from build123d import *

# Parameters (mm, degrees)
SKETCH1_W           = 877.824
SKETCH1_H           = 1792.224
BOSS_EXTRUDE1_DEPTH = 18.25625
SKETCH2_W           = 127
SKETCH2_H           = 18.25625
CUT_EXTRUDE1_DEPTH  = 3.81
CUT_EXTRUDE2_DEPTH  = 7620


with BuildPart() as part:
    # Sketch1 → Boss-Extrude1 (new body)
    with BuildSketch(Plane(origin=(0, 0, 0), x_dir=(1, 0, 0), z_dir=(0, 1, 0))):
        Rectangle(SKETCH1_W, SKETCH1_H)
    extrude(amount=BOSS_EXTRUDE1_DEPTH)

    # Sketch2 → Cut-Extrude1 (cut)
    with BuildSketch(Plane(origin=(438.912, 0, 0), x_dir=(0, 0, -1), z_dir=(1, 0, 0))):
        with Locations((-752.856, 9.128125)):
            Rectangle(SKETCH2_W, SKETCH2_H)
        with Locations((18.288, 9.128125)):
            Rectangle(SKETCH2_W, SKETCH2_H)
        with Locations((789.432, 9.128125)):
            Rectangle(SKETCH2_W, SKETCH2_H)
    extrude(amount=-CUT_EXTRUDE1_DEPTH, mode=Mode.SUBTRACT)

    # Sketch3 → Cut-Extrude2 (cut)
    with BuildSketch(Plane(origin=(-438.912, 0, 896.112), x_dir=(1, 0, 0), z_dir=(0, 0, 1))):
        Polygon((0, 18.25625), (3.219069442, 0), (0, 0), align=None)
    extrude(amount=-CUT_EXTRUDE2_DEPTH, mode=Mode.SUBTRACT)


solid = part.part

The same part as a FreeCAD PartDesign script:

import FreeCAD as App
import Part
import Sketcher
from FreeCAD import Vector
Q = App.Units.Quantity


def add_polygon(sketch, points):
    """Adds a closed chain of lines whose ends are joined by coincident constraints."""
    first, n = sketch.GeometryCount, len(points)
    for a, b in zip(points, points[1:] + points[:1]):
        sketch.addGeometry(Part.LineSegment(App.Vector(*a, 0), App.Vector(*b, 0)), False)
    for i in range(n):
        sketch.addConstraint(Sketcher.Constraint("Coincident", first + i, 2, first + (i + 1) % n, 1))

doc = App.newDocument("Part")
body = doc.addObject("PartDesign::Body", "Body")

sketch1 = body.newObject("Sketcher::SketchObject", "Sketch")
sketch1.AttachmentSupport = (doc.getObject("XZ_Plane"), [""])
sketch1.MapMode = "FlatFace"
add_polygon(sketch1, [(-439, -896), (-439, 896), (439, 896), (439, -896)])
sketch1.addConstraint(Sketcher.Constraint("Vertical", 0))
sketch1.addConstraint(Sketcher.Constraint("Horizontal", 1))
sketch1.addConstraint(Sketcher.Constraint("Vertical", 2))
sketch1.addConstraint(Sketcher.Constraint("Horizontal", 3))
sketch1.addConstraint(Sketcher.Constraint("Symmetric", 0, 2, 2, 2, -1, 1))
sketch1.addConstraint(Sketcher.Constraint("DistanceX", 1, 1, 1, 2, Q("34.56 in")))
sketch1.addConstraint(Sketcher.Constraint("DistanceY", 0, 1, 0, 2, Q("70.56 in")))
pad1 = body.newObject("PartDesign::Pad", "Pad")
pad1.Profile = sketch1
pad1.Length = Q("0.71875 in")
pad1.Reversed = True

sketch2 = body.newObject("Sketcher::SketchObject", "Sketch001")
sketch2.AttachmentSupport = (doc.getObject("YZ_Plane"), [""])
sketch2.MapMode = "FlatFace"
sketch2.AttachmentOffset = App.Placement(Vector(0, 0, 17.28 * 25.4), App.Rotation())
add_polygon(sketch2, [(18, 816), (0, 816), (0, 689), (18, 689)])
add_polygon(sketch2, [(18, 45), (0, 45), (0, -82), (18, -82)])
add_polygon(sketch2, [(18, -726), (0, -726), (0, -853), (18, -853)])
sketch2.addConstraint(Sketcher.Constraint("Horizontal", 0))
sketch2.addConstraint(Sketcher.Constraint("Vertical", 1))
sketch2.addConstraint(Sketcher.Constraint("Horizontal", 2))
sketch2.addConstraint(Sketcher.Constraint("Vertical", 3))
sketch2.addConstraint(Sketcher.Constraint("Horizontal", 4))
sketch2.addConstraint(Sketcher.Constraint("Vertical", 5))
sketch2.addConstraint(Sketcher.Constraint("Horizontal", 6))
sketch2.addConstraint(Sketcher.Constraint("Vertical", 7))
sketch2.addConstraint(Sketcher.Constraint("Horizontal", 8))
sketch2.addConstraint(Sketcher.Constraint("Vertical", 9))
sketch2.addConstraint(Sketcher.Constraint("Horizontal", 10))
sketch2.addConstraint(Sketcher.Constraint("Vertical", 11))
sketch2.addConstraint(Sketcher.Constraint("PointOnObject", 0, 2, -2))
sketch2.addConstraint(Sketcher.Constraint("PointOnObject", 4, 2, -2))
sketch2.addConstraint(Sketcher.Constraint("PointOnObject", 8, 2, -2))
sketch2.addConstraint(Sketcher.Constraint("Vertical", 3, 2, 6, 2))
sketch2.addConstraint(Sketcher.Constraint("Vertical", 7, 2, 10, 2))
sketch2.addConstraint(Sketcher.Constraint("Equal", 3, 5))
sketch2.addConstraint(Sketcher.Constraint("Equal", 7, 9))
sketch2.addConstraint(Sketcher.Constraint("DistanceY", 1, 2, 1, 1, Q("5 in")))
sketch2.addConstraint(Sketcher.Constraint("DistanceX", 0, 2, 0, 1, Q("0.71875 in")))
sketch2.addConstraint(Sketcher.Constraint("DistanceY", -1, 1, 0, 2, Q("32.14 in")))
sketch2.addConstraint(Sketcher.Constraint("DistanceY", -1, 1, 4, 2, Q("1.78 in")))
sketch2.addConstraint(Sketcher.Constraint("DistanceY", 8, 2, -1, 1, Q("28.58 in")))
pocket1 = body.newObject("PartDesign::Pocket", "Pocket")
pocket1.Profile = sketch2
pocket1.Length = Q("0.15 in")

sketch3 = body.newObject("Sketcher::SketchObject", "Sketch002")
sketch3.AttachmentSupport = (doc.getObject("XY_Plane"), [""])
sketch3.MapMode = "FlatFace"
sketch3.AttachmentOffset = App.Placement(Vector(0, 0, 35.28 * 25.4), App.Rotation())
add_polygon(sketch3, [(-435.7, 0), (-438.9, 18.3), (-438.9, 0)])
sketch3.addConstraint(Sketcher.Constraint("Vertical", 1))
sketch3.addConstraint(Sketcher.Constraint("Horizontal", 2))
sketch3.addConstraint(Sketcher.Constraint("PointOnObject", 1, 2, -1))
sketch3.addConstraint(Sketcher.Constraint("Angle", 0, Q("100 deg")))
sketch3.addConstraint(Sketcher.Constraint("DistanceY", 1, 2, 1, 1, Q("0.71875 in")))
sketch3.addConstraint(Sketcher.Constraint("DistanceX", 0, 2, -1, 1, Q("17.28 in")))
pocket2 = body.newObject("PartDesign::Pocket", "Pocket001")
pocket2.Profile = sketch3
pocket2.Length = Q("300 in")

doc.recompute()
